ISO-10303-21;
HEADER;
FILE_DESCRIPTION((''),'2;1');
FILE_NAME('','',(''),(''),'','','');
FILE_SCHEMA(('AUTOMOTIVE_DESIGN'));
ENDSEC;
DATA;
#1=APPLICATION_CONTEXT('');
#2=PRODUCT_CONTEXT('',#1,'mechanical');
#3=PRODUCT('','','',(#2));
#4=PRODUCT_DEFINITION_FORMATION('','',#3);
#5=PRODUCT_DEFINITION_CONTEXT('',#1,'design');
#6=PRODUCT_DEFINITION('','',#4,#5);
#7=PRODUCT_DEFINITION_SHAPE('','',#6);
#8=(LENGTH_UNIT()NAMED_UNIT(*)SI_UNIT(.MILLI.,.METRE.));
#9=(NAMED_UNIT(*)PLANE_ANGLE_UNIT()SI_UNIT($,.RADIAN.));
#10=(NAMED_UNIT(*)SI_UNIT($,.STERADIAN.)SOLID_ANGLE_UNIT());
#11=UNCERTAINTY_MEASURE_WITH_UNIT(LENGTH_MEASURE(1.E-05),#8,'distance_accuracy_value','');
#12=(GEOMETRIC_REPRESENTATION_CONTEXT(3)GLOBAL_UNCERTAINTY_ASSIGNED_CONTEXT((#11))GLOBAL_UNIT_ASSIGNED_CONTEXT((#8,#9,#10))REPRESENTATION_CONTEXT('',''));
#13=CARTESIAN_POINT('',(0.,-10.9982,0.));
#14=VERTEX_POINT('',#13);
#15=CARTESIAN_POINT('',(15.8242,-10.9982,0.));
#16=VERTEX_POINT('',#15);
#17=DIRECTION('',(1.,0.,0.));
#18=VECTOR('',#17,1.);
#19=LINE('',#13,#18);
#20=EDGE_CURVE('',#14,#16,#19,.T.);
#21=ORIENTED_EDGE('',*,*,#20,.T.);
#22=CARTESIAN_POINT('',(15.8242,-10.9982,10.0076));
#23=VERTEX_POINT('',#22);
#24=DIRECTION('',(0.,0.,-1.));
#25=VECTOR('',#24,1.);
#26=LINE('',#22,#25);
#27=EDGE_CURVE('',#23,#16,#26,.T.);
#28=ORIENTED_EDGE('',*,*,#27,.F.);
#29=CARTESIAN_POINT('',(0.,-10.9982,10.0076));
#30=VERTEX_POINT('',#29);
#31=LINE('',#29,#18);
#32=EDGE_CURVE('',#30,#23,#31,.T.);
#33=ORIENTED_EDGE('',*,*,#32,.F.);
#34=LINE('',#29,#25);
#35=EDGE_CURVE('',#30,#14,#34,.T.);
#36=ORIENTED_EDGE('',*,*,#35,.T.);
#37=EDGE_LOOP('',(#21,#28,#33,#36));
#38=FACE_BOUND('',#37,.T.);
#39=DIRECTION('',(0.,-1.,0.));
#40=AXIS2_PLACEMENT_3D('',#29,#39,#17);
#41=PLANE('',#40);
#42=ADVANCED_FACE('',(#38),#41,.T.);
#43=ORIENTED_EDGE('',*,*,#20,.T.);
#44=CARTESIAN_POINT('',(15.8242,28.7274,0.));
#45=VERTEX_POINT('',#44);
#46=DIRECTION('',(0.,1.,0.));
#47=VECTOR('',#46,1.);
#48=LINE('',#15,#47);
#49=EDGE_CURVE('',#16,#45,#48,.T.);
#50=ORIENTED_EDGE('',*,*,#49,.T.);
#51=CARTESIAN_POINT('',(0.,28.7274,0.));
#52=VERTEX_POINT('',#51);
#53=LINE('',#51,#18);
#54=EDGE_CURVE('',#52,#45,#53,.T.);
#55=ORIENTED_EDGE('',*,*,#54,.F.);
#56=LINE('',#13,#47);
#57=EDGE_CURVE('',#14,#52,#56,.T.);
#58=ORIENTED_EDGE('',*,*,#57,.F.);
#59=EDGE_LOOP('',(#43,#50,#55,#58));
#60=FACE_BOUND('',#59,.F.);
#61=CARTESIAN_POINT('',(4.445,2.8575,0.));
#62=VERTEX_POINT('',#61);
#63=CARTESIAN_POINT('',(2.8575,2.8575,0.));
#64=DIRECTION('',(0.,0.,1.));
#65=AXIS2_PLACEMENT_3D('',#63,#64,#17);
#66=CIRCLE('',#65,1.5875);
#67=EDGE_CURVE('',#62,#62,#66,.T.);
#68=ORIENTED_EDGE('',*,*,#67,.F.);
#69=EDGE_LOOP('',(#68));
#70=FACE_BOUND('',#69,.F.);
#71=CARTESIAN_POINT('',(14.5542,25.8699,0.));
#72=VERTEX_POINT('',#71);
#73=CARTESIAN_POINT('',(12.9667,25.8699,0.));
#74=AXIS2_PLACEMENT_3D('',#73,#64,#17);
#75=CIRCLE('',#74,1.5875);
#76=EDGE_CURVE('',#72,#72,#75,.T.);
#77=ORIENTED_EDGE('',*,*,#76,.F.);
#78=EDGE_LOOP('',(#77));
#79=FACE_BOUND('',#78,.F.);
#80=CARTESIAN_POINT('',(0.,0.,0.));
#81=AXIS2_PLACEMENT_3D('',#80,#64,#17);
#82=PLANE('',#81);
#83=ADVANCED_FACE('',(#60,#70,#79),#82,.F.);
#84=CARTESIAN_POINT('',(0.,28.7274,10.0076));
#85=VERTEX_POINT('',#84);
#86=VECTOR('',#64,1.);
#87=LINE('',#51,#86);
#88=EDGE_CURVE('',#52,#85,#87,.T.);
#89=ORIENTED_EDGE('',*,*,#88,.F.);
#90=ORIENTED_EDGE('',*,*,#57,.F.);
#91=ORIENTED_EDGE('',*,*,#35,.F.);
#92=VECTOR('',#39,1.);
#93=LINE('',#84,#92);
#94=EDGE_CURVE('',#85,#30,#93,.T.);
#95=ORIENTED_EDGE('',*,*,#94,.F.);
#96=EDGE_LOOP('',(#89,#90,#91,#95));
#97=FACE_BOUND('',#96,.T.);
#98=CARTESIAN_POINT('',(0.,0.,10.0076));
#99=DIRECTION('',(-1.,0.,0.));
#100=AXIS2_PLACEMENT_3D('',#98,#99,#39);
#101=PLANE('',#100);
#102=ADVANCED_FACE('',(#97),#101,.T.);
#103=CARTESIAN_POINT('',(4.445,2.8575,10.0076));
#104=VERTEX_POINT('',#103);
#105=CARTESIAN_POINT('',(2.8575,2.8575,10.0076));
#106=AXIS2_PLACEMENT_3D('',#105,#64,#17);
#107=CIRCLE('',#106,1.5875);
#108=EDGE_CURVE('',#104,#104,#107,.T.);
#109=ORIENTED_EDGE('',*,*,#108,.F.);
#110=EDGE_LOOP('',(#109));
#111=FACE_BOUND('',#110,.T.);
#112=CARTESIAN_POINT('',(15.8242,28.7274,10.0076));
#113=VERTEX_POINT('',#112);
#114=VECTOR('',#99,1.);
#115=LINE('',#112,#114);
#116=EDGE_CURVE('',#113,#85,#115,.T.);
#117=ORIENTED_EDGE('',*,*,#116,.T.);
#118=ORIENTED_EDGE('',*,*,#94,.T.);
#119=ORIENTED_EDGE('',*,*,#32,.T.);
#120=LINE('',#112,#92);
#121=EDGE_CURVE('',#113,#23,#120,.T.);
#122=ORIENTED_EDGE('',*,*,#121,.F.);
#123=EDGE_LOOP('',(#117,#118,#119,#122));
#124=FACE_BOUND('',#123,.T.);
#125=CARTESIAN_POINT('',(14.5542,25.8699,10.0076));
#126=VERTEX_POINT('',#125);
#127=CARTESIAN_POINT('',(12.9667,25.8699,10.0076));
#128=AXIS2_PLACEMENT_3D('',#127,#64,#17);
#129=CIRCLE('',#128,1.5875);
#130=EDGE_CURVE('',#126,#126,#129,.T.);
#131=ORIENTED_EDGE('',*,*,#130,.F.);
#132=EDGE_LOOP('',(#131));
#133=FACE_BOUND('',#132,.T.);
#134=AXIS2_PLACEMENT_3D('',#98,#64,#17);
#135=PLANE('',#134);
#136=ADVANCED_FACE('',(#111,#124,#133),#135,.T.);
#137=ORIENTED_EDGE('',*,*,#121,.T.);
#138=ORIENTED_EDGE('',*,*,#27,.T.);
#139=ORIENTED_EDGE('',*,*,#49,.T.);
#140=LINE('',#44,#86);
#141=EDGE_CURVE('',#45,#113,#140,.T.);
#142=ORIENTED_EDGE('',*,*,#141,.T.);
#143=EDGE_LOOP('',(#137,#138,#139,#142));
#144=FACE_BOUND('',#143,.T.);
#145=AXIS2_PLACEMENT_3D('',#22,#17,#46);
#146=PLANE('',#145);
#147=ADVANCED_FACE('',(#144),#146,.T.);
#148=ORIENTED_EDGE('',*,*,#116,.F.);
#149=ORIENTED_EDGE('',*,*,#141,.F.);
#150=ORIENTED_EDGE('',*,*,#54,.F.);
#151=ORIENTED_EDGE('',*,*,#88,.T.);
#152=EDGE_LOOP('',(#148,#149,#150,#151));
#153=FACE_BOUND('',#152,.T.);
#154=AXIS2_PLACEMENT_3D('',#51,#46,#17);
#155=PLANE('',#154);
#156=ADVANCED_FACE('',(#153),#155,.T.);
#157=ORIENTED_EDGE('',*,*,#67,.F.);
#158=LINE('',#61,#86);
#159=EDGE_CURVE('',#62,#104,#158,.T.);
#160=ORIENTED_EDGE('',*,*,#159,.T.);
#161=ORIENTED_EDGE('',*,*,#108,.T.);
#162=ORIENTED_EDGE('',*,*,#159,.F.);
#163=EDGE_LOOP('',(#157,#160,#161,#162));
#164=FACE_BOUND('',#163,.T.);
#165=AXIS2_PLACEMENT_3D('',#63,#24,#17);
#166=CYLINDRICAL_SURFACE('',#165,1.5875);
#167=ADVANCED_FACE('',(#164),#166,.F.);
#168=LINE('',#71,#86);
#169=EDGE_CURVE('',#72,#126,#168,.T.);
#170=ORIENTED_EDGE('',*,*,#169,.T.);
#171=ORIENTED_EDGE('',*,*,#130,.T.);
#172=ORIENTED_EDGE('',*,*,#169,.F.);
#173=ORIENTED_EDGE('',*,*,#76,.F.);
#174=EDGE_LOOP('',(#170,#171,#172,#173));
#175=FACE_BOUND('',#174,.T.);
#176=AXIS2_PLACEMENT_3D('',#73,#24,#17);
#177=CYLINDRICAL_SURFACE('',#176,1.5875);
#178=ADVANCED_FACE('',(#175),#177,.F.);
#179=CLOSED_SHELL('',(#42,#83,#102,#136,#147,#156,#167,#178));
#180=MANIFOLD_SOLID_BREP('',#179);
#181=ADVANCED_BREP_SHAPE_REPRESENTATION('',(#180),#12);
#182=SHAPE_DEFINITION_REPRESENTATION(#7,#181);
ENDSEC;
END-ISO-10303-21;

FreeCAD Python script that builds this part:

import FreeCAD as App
import Part
import Sketcher

V = App.Vector
Q = App.Units.Quantity


def add_polygon(sketch, points):
    """Adds a closed chain of lines whose ends are joined by coincident constraints."""
    first, n = sketch.GeometryCount, len(points)
    for a, b in zip(points, points[1:] + points[:1]):
        sketch.addGeometry(Part.LineSegment(App.Vector(*a, 0), App.Vector(*b, 0)), False)
    for i in range(n):
        sketch.addConstraint(Sketcher.Constraint("Coincident", first + i, 2, first + (i + 1) % n, 1))

doc = App.newDocument("Part")
body = doc.addObject("PartDesign::Body", "Body")

# Sketch on XY plane
sketch1 = doc.addObject("Sketcher::SketchObject", "Sketch")
body.addObject(sketch1)
sketch1.AttachmentSupport = (doc.XY_Plane, [""])
sketch1.MapMode = "FlatFace"
add_polygon(sketch1, [(0, 0), (15.8242, 0), (15.8242, 28.7274), (0, 28.7274)])  # lines 0-3
sketch1.addGeometry(Part.Circle(V(2.8575, 2.8575, 0), V(0, 0, 1), 1.5875), False)  # 4
sketch1.addGeometry(Part.Circle(V(12.9667, 25.8699, 0), V(0, 0, 1), 1.5875), False)  # 5
sketch1.addConstraint([
    Sketcher.Constraint("Horizontal", 0),
    Sketcher.Constraint("Vertical", 1),
    Sketcher.Constraint("Horizontal", 2),
    Sketcher.Constraint("Vertical", 3),
    Sketcher.Constraint("Coincident", 3, 2, -1, 1),
    Sketcher.Constraint("Equal", 4, 5),
    Sketcher.Constraint("Diameter", 4, Q("0.125 in")),
    Sketcher.Constraint("DistanceX", 0, 1, 0, 2, Q("0.623 in")),
    Sketcher.Constraint("DistanceY", 1, 1, 1, 2, Q("1.131 in")),
    Sketcher.Constraint("DistanceX", 4, 3, 5, 3, Q("0.398 in")),
    Sketcher.Constraint("DistanceY", 4, 3, 5, 3, Q("0.906 in")),
    Sketcher.Constraint("DistanceX", -1, 1, 4, 3, Q("0.1125 in")),
    Sketcher.Constraint("DistanceY", -1, 1, 4, 3, Q("0.1125 in")),
])
pad1 = doc.addObject("PartDesign::Pad", "Pad")
body.addObject(pad1)
pad1.Profile = sketch1
pad1.Length = Q("0.394 in")

# Sketch on XY plane
sketch2 = doc.addObject("Sketcher::SketchObject", "Sketch001")
body.addObject(sketch2)
sketch2.AttachmentSupport = (doc.XY_Plane, [""])
sketch2.MapMode = "FlatFace"
sketch2.AttachmentOffset = App.Placement(V(0, 0, 0.394 * 25.4), App.Rotation())
add_polygon(sketch2, [(15.8242, 0), (0, 0), (0, -10.9982), (15.8242, -10.9982)])  # lines 0-3
sketch2.addConstraint([
    Sketcher.Constraint("Horizontal", 0),
    Sketcher.Constraint("Vertical", 1),
    Sketcher.Constraint("Horizontal", 2),
    Sketcher.Constraint("Vertical", 3),
    Sketcher.Constraint("Coincident", 0, 2, -1, 1),
    Sketcher.Constraint("DistanceY", 1, 2, 1, 1, Q("0.433 in")),
    Sketcher.Constraint("DistanceX", 0, 2, 0, 1, Q("0.623 in")),
])
pad2 = doc.addObject("PartDesign::Pad", "Pad001")
body.addObject(pad2)
pad2.Profile = sketch2
pad2.Length = Q("0.394 in")
pad2.Reversed = True

doc.recompute()
